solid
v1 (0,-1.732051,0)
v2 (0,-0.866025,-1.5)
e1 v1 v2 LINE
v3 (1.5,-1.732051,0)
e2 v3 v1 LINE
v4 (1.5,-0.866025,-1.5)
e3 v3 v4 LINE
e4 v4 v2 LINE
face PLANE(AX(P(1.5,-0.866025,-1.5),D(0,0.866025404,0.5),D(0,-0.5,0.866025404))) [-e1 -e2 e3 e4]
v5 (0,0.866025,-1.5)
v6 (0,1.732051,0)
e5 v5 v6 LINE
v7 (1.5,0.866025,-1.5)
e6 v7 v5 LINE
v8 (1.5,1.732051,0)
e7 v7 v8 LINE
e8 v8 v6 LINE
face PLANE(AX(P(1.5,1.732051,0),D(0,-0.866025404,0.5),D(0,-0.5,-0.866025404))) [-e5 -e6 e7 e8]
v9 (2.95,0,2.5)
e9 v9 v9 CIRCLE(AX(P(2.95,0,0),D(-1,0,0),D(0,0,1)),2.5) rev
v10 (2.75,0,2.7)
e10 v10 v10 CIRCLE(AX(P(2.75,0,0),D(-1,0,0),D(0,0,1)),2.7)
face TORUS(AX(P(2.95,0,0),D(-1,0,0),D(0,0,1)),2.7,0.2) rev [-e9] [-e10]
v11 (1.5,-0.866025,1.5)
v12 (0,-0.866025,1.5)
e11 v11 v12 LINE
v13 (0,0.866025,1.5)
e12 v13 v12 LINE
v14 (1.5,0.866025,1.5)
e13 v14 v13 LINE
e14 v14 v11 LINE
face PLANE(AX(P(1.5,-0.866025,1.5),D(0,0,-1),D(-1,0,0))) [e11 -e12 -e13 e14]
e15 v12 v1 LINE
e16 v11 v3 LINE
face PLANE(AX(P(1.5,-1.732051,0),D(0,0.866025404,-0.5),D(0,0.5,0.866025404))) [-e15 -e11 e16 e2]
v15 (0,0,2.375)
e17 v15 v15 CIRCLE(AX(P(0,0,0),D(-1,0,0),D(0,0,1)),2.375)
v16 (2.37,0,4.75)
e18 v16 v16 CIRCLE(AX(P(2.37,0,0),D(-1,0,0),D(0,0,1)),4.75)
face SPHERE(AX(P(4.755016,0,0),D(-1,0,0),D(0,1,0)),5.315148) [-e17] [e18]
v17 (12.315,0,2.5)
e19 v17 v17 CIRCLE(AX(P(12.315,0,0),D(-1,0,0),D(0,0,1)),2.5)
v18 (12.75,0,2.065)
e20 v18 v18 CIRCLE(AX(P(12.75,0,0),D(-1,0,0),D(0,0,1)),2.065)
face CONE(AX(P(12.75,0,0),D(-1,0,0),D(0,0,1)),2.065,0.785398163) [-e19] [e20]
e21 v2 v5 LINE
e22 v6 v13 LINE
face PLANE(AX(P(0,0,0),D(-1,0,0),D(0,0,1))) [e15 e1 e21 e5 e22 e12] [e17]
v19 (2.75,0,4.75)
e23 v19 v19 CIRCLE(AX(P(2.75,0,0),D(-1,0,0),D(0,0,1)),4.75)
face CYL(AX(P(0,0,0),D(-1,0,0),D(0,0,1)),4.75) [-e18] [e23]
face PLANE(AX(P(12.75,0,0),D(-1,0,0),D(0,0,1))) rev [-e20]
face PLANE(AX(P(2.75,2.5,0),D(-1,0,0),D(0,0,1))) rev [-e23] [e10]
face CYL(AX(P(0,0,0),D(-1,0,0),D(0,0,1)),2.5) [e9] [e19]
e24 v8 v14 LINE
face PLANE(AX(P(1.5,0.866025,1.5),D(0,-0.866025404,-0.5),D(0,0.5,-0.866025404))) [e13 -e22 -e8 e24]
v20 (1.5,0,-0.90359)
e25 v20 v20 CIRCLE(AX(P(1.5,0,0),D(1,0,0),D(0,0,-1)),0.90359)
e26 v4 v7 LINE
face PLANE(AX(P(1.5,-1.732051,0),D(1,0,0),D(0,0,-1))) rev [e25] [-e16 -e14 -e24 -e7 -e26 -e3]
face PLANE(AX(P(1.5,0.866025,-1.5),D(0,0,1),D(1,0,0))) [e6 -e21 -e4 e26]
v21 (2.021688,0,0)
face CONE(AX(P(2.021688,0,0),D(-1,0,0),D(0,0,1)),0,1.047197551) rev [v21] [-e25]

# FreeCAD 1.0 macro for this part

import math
import FreeCAD as App
import Part
import Sketcher

V = App.Vector
Q = App.Units.Quantity


def edges_at(feature, points):
    """Names of the edges that pass closest to the given points."""
    edges = feature.Shape.Edges
    near = lambda p: min(range(len(edges)), key=lambda i: edges[i].distToShape(Part.Vertex(*p))[0])
    return sorted({f"Edge{near(p) + 1}" for p in points})


def add_polygon(sketch, points):
    """Adds a closed chain of lines whose ends are joined by coincident constraints."""
    first, n = sketch.GeometryCount, len(points)
    for a, b in zip(points, points[1:] + points[:1]):
        sketch.addGeometry(Part.LineSegment(App.Vector(*a, 0), App.Vector(*b, 0)), False)
    for i in range(n):
        sketch.addConstraint(Sketcher.Constraint("Coincident", first + i, 2, first + (i + 1) % n, 1))

doc = App.newDocument("Part")
body = doc.addObject("PartDesign::Body", "Body")

# Sketch on XY plane
sketch1 = doc.addObject("Sketcher::SketchObject", "Sketch")
body.addObject(sketch1)
sketch1.AttachmentSupport = (doc.XY_Plane, [""])
sketch1.MapMode = "FlatFace"
sketch1.addGeometry([
    Part.LineSegment(V(12.75, 0, 0), V(12.75, 2.065, 0)),  # 0
    Part.LineSegment(V(12.75, 2.065, 0), V(12.315, 2.5, 0)),  # 1
    Part.LineSegment(V(12.315, 2.5, 0), V(2.75, 2.5, 0)),  # 2
    Part.LineSegment(V(2.75, 2.5, 0), V(2.75, 4.75, 0)),  # 3
    Part.LineSegment(V(2.75, 4.75, 0), V(2.37, 4.75, 0)),  # 4
    Part.ArcOfCircle(Part.Circle(V(4.755016, 0, 0), V(0, 0, 1), 5.315148), math.radians(116.66162), math.radians(153.459129)),  # 5
    Part.LineSegment(V(0, 2.375, 0), V(0, 0, 0)),  # 6
    Part.LineSegment(V(0, 0, 0), V(12.75, 0, 0)),  # 7
], False)
sketch1.addConstraint([
    Sketcher.Constraint("Coincident", 0, 2, 1, 1),
    Sketcher.Constraint("Coincident", 1, 2, 2, 1),
    Sketcher.Constraint("Coincident", 2, 2, 3, 1),
    Sketcher.Constraint("Coincident", 3, 2, 4, 1),
    Sketcher.Constraint("Coincident", 4, 2, 5, 1),
    Sketcher.Constraint("Coincident", 5, 2, 6, 1),
    Sketcher.Constraint("Coincident", 6, 2, 7, 1),
    Sketcher.Constraint("Coincident", 7, 2, 0, 1),
    Sketcher.Constraint("Vertical", 0),
    Sketcher.Constraint("Horizontal", 2),
    Sketcher.Constraint("Vertical", 3),
    Sketcher.Constraint("Horizontal", 4),
    Sketcher.Constraint("Vertical", 6),
    Sketcher.Constraint("Horizontal", 7),
    Sketcher.Constraint("Coincident", 6, 2, -1, 1),
    Sketcher.Constraint("PointOnObject", 5, 3, -1),
    Sketcher.Constraint("Angle", 1, Q("135 deg")),
    Sketcher.Constraint("DistanceX", 2, 2, 0, 2, 10.0),
    Sketcher.Constraint("DistanceX", 4, 2, 4, 1, 0.38),
    Sketcher.Constraint("DistanceX", 7, 1, 7, 2, 12.75),
    Sketcher.Constraint("DistanceY", 3, 1, 3, 2, 2.25),
    Sketcher.Constraint("DistanceY", -1, 1, 1, 2, 2.5),
    Sketcher.Constraint("DistanceX", 2, 2, 2, 1, 9.565),
    Sketcher.Constraint("DistanceY", 6, 2, 6, 1, 2.375),
])
revolution = doc.addObject("PartDesign::Revolution", "Revolution")
body.addObject(revolution)
revolution.Profile = sketch1
revolution.ReferenceAxis = (sketch1, ["H_Axis"])
revolution.Angle = 360
doc.recompute()

fillet = doc.addObject("PartDesign::Fillet", "Fillet")
body.addObject(fillet)
fillet.Base = (revolution, edges_at(revolution, [(2.75, -2.5, 0)]))
fillet.Radius = 0.2

# Sketch on XY plane
sketch2 = doc.addObject("Sketcher::SketchObject", "Sketch001")
body.addObject(sketch2)
sketch2.AttachmentSupport = (doc.XY_Plane, [""])
sketch2.MapMode = "FlatFace"
add_polygon(sketch2, [(1.3, 1.25), (0, 1.25), (0, 0), (2.021688, 0)])  # lines 0-3
sketch2.addConstraint([
    Sketcher.Constraint("Horizontal", 0),
    Sketcher.Constraint("Vertical", 1),
    Sketcher.Constraint("Horizontal", 2),
    Sketcher.Constraint("Coincident", 1, 2, -1, 1),
    Sketcher.Constraint("Angle", 3, Q("120 deg")),
    Sketcher.Constraint("DistanceX", 0, 2, 0, 1, 1.3),
    Sketcher.Constraint("DistanceY", 1, 2, 1, 1, 1.25),
])
groove = doc.addObject("PartDesign::Groove", "Groove")
body.addObject(groove)
groove.Profile = sketch2
groove.ReferenceAxis = (sketch2, ["H_Axis"])
groove.Angle = 360

# Sketch on YZ plane
sketch3 = doc.addObject("Sketcher::SketchObject", "Sketch002")
body.addObject(sketch3)
sketch3.AttachmentSupport = (doc.YZ_Plane, [""])
sketch3.MapMode = "FlatFace"
add_polygon(sketch3, [(0.866025, 1.5), (-0.866025, 1.5), (-1.732051, 0), (-0.866025, -1.5), (0.866025, -1.5), (1.732051, 0)])  # lines 0-5
sketch3.addConstraint([
    Sketcher.Constraint("Horizontal", 0),
    Sketcher.Constraint("Horizontal", 3),
    Sketcher.Constraint("Symmetric", 0, 2, 3, 2, -1, 1),
    Sketcher.Constraint("Symmetric", 1, 2, 4, 2, -1, 1),
    Sketcher.Constraint("PointOnObject", 1, 2, -1),
    Sketcher.Constraint("Parallel", 2, 5),
    Sketcher.Constraint("Vertical", 0, 2, 2, 2),
    Sketcher.Constraint("Angle", 1, Q("-120 deg")),
    Sketcher.Constraint("DistanceY", 2, 2, 0, 2, 3.0),
    Sketcher.Constraint("DistanceX", 0, 2, 0, 1, 1.732051),
])
pocket1 = doc.addObject("PartDesign::Pocket", "Pocket")
body.addObject(pocket1)
pocket1.Profile = sketch3
pocket1.Length = 1.5
pocket1.Reversed = True

doc.recompute()
